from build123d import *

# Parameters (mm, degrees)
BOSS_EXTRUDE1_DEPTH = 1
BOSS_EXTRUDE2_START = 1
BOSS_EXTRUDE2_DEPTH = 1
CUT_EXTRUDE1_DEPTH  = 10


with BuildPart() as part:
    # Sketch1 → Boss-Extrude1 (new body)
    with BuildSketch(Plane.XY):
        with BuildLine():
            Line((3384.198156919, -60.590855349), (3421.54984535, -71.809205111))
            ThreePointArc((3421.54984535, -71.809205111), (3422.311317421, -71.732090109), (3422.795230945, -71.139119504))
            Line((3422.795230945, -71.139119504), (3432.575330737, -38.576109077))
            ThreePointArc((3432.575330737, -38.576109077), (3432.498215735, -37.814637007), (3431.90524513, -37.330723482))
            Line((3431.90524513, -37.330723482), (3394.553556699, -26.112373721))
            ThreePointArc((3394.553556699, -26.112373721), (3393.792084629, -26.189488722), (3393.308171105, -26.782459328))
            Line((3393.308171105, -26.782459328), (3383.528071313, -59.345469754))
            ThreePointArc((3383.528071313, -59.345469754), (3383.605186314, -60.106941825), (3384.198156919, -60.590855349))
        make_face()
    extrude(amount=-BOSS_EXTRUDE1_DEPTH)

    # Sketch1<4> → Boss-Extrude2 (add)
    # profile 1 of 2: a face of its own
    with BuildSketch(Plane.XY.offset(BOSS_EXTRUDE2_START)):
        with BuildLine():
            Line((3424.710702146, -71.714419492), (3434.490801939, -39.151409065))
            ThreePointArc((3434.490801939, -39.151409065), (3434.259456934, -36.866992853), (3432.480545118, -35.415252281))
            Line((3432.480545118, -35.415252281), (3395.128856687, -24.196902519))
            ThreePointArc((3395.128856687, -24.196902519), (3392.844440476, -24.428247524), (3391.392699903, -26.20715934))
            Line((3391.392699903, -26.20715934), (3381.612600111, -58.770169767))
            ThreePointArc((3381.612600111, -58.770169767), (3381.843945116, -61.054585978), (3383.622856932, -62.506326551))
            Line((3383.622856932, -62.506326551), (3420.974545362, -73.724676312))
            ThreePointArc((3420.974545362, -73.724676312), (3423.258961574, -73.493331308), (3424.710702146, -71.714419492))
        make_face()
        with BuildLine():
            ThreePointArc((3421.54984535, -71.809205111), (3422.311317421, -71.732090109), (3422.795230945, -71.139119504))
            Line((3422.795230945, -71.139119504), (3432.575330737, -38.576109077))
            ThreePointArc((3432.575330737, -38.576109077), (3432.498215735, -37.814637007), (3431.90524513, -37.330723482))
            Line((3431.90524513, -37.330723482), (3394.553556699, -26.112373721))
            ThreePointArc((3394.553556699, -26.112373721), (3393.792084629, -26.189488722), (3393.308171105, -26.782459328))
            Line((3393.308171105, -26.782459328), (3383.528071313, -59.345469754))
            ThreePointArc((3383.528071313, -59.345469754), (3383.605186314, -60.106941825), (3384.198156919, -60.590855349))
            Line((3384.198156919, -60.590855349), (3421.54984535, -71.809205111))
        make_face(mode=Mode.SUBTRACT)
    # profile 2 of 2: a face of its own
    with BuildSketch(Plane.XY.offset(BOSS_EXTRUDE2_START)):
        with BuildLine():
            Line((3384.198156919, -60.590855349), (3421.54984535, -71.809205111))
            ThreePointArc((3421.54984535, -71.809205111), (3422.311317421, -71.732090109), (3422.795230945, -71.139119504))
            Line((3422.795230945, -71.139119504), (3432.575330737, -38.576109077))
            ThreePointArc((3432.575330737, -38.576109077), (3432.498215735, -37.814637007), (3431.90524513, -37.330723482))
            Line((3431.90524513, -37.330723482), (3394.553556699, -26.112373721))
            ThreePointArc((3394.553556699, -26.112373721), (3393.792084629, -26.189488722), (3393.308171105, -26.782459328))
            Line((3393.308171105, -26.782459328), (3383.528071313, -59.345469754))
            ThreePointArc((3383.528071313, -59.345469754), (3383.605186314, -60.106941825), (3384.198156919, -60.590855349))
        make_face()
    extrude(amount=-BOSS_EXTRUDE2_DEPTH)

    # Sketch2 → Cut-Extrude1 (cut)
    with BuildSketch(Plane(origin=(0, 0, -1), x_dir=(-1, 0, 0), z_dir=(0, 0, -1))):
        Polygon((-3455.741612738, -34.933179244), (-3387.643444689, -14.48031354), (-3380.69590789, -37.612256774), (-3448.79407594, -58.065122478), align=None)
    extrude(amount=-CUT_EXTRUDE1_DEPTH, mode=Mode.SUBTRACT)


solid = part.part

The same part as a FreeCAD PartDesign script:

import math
import FreeCAD as App
import Part
import Sketcher
from FreeCAD import Vector


def add_polygon(sketch, points):
    """Adds a closed chain of lines whose ends are joined by coincident constraints."""
    first, n = sketch.GeometryCount, len(points)
    for a, b in zip(points, points[1:] + points[:1]):
        sketch.addGeometry(Part.LineSegment(App.Vector(*a, 0), App.Vector(*b, 0)), False)
    for i in range(n):
        sketch.addConstraint(Sketcher.Constraint("Coincident", first + i, 2, first + (i + 1) % n, 1))

doc = App.newDocument("Part")
body = doc.addObject("PartDesign::Body", "Body")

# Sketch on XY plane
sketch1 = body.newObject("Sketcher::SketchObject", "Sketch")
sketch1.AttachmentSupport = (doc.getObject("XY_Plane"), [""])
sketch1.MapMode = "FlatFace"
sketch1.addGeometry([
    Part.LineSegment(Vector(3384.2, -60.6, 0), Vector(3421.5, -71.8, 0)),  # 0
    Part.ArcOfCircle(Part.Circle(Vector(3421.8, -70.9, 0), Vector(0, 0, 1), 1), math.radians(-107), math.radians(-17)),  # 1
    Part.LineSegment(Vector(3422.8, -71.1, 0), Vector(3432.6, -38.6, 0)),  # 2
    Part.ArcOfCircle(Part.Circle(Vector(3431.6, -38.3, 0), Vector(0, 0, 1), 1), math.radians(-17), math.radians(73)),  # 3
    Part.LineSegment(Vector(3431.9, -37.3, 0), Vector(3394.6, -26.1, 0)),  # 4
    Part.ArcOfCircle(Part.Circle(Vector(3394.3, -27.1, 0), Vector(0, 0, 1), 1), math.radians(73), math.radians(163)),  # 5
    Part.LineSegment(Vector(3393.3, -26.8, 0), Vector(3383.5, -59.3, 0)),  # 6
    Part.ArcOfCircle(Part.Circle(Vector(3384.5, -59.6, 0), Vector(0, 0, 1), 1), math.radians(163), math.radians(253)),  # 7
], False)
sketch1.addConstraint([
    Sketcher.Constraint("Tangent", 0, 2, 1, 1),
    Sketcher.Constraint("Tangent", 1, 2, 2, 1),
    Sketcher.Constraint("Tangent", 2, 2, 3, 1),
    Sketcher.Constraint("Tangent", 3, 2, 4, 1),
    Sketcher.Constraint("Tangent", 4, 2, 5, 1),
    Sketcher.Constraint("Tangent", 5, 2, 6, 1),
    Sketcher.Constraint("Tangent", 6, 2, 7, 1),
    Sketcher.Constraint("Tangent", 7, 2, 0, 1),
    Sketcher.Constraint("Equal", 1, 3),
    Sketcher.Constraint("Equal", 3, 5),
    Sketcher.Constraint("Equal", 5, 7),
    Sketcher.Constraint("Perpendicular", 0, 2),
    Sketcher.Constraint("Perpendicular", 2, 4),
    Sketcher.Constraint("Perpendicular", 4, 6),
    Sketcher.Constraint("Radius", 1, 1.0),
    Sketcher.Constraint("Distance", 0, 39.0),
    Sketcher.Constraint("Distance", 2, 34.0),
    Sketcher.Constraint("DistanceY", 1, 2, 7, 3, 11.506),
    Sketcher.Constraint("DistanceY", 1, 3, -1, 1, 70.85147),
    Sketcher.Constraint("DistanceX", -1, 1, 1, 2, 3422.795231),
])
pad1 = body.newObject("PartDesign::Pad", "Pad")
pad1.Profile = sketch1
pad1.Length = 1
pad1.Reversed = True

# Sketch on XY plane
sketch2 = body.newObject("Sketcher::SketchObject", "Sketch001")
sketch2.AttachmentSupport = (doc.getObject("XY_Plane"), [""])
sketch2.MapMode = "FlatFace"
sketch2.AttachmentOffset = App.Placement(Vector(0, 0, 1), App.Rotation())
sketch2.addGeometry([
    Part.LineSegment(Vector(3424.7, -71.7, 0), Vector(3434.5, -39.2, 0)),  # 0
    Part.ArcOfCircle(Part.Circle(Vector(3431.6, -38.3, 0), Vector(0, 0, 1), 3), math.radians(-17), math.radians(73)),  # 1
    Part.LineSegment(Vector(3432.5, -35.4, 0), Vector(3395.1, -24.2, 0)),  # 2
    Part.ArcOfCircle(Part.Circle(Vector(3394.3, -27.1, 0), Vector(0, 0, 1), 3), math.radians(73), math.radians(163)),  # 3
    Part.LineSegment(Vector(3391.4, -26.2, 0), Vector(3381.6, -58.8, 0)),  # 4
    Part.ArcOfCircle(Part.Circle(Vector(3384.5, -59.6, 0), Vector(0, 0, 1), 3), math.radians(163), math.radians(253)),  # 5
    Part.LineSegment(Vector(3383.6, -62.5, 0), Vector(3421, -73.7, 0)),  # 6
    Part.ArcOfCircle(Part.Circle(Vector(3421.8, -70.9, 0), Vector(0, 0, 1), 3), math.radians(-107), math.radians(-17)),  # 7
], False)
sketch2.addConstraint([
    Sketcher.Constraint("Tangent", 0, 2, 1, 1),
    Sketcher.Constraint("Tangent", 1, 2, 2, 1),
    Sketcher.Constraint("Tangent", 2, 2, 3, 1),
    Sketcher.Constraint("Tangent", 3, 2, 4, 1),
    Sketcher.Constraint("Tangent", 4, 2, 5, 1),
    Sketcher.Constraint("Tangent", 5, 2, 6, 1),
    Sketcher.Constraint("Tangent", 6, 2, 7, 1),
    Sketcher.Constraint("Tangent", 7, 2, 0, 1),
    Sketcher.Constraint("Equal", 1, 3),
    Sketcher.Constraint("Equal", 3, 5),
    Sketcher.Constraint("Equal", 5, 7),
    Sketcher.Constraint("Perpendicular", 0, 2),
    Sketcher.Constraint("Perpendicular", 2, 4),
    Sketcher.Constraint("Perpendicular", 4, 6),
    Sketcher.Constraint("Radius", 1, 3.0),
    Sketcher.Constraint("Distance", 0, 34.0),
    Sketcher.Constraint("Distance", 2, 39.0),
    Sketcher.Constraint("DistanceX", -1, 1, 0, 2, 3434.490802),
    Sketcher.Constraint("DistanceX", -1, 1, 3, 2, 3391.3927),
    Sketcher.Constraint("DistanceY", 1, 3, -1, 1, 38.288459),
])
pad2 = body.newObject("PartDesign::Pad", "Pad001")
pad2.Profile = sketch2
pad2.Length = 1
pad2.Reversed = True

# Sketch on XY plane
sketch3 = body.newObject("Sketcher::SketchObject", "Sketch002")
sketch3.AttachmentSupport = (doc.getObject("XY_Plane"), [""])
sketch3.MapMode = "FlatFace"
sketch3.AttachmentOffset = App.Placement(Vector(0, 0, -1), App.Rotation())
add_polygon(sketch3, [(3388, -14), (3456, -35), (3449, -58), (3381, -38)])  # lines 0-3
sketch3.addConstraint([
    Sketcher.Constraint("Perpendicular", 0, 1),
    Sketcher.Constraint("Perpendicular", 1, 2),
    Sketcher.Constraint("Perpendicular", 2, 3),
    Sketcher.Constraint("DistanceY", 0, 2, -1, 1, 34.933179),
    Sketcher.Constraint("DistanceX", 2, 2, 1, 2, 68.098168),
    Sketcher.Constraint("DistanceX", 3, 2, 1, 2, 61.150631),
    Sketcher.Constraint("DistanceY", 1, 2, 3, 2, 43.584809),
    Sketcher.Constraint("DistanceX", -1, 1, 0, 2, 3455.741613),
])
pocket1 = body.newObject("PartDesign::Pocket", "Pocket")
pocket1.Profile = sketch3
pocket1.Length = 10
pocket1.Reversed = True

doc.recompute()
